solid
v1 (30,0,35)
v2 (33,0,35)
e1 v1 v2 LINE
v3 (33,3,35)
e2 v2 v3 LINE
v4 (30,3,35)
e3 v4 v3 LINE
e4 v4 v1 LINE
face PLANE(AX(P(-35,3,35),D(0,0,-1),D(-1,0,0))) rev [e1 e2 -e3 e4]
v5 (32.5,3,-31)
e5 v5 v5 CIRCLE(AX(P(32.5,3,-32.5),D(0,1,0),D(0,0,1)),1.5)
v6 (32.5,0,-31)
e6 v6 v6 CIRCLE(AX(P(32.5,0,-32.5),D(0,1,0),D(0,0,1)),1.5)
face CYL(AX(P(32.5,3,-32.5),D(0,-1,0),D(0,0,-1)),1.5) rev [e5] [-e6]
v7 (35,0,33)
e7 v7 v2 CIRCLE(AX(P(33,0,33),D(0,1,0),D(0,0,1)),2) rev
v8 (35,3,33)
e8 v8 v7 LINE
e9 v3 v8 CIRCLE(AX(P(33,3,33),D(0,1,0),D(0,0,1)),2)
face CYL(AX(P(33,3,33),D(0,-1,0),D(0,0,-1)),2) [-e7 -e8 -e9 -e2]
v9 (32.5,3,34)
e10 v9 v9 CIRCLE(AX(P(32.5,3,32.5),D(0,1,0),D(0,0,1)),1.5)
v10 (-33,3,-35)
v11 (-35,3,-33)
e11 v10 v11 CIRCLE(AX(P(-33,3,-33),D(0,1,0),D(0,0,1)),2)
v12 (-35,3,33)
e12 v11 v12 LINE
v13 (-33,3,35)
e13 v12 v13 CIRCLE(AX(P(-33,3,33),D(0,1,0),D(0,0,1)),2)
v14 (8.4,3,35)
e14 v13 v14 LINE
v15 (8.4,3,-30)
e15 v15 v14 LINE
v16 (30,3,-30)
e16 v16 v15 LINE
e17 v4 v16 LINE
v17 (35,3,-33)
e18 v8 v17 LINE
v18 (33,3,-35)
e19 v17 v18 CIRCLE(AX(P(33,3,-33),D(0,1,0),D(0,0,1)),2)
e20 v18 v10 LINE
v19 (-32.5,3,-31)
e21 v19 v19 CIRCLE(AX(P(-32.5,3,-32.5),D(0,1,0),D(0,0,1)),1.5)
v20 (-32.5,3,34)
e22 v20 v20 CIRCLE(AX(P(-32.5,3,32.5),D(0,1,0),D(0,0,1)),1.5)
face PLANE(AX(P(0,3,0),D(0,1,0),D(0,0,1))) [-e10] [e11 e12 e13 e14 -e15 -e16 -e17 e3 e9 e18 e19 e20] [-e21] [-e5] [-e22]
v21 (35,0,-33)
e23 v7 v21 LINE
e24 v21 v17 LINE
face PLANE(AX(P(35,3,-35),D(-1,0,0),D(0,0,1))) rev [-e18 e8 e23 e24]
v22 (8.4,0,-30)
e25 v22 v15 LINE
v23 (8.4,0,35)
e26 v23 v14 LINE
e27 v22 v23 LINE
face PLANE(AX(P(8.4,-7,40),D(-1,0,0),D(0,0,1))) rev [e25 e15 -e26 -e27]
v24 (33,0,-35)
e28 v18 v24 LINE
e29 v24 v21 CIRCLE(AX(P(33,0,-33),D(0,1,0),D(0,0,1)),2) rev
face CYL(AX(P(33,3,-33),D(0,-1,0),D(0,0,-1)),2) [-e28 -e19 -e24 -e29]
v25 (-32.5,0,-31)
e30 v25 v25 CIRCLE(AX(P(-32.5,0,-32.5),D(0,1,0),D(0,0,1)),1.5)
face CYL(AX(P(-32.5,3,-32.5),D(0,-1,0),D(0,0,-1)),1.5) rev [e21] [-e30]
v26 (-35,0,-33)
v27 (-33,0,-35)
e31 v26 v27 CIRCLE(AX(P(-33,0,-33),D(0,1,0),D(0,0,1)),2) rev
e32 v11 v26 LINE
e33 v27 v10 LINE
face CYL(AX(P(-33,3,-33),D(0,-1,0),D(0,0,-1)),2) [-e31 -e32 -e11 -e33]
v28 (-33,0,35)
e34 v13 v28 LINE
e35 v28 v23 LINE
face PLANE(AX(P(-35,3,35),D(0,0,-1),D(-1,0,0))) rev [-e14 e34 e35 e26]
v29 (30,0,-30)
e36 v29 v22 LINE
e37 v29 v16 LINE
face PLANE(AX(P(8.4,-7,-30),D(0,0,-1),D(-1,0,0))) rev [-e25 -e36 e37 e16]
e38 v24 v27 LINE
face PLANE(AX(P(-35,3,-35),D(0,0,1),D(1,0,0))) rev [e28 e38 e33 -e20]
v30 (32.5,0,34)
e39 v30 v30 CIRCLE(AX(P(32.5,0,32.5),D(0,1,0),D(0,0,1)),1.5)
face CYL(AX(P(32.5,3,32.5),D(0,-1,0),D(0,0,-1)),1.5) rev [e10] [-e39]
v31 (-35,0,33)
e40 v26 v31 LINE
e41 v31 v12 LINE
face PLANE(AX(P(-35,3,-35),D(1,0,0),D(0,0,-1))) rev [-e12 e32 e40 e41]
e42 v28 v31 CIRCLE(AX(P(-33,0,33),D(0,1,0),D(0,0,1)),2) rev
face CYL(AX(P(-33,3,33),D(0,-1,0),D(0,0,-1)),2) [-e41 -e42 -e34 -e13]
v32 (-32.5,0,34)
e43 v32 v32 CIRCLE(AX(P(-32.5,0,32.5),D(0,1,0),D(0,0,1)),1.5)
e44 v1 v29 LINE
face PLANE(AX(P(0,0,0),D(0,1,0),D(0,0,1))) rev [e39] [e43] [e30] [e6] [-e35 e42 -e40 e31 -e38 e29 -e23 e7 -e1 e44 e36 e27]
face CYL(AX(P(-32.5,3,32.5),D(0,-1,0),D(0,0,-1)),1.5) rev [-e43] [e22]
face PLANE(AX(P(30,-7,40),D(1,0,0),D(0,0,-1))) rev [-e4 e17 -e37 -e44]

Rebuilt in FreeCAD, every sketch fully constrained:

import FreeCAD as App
import Part
import Sketcher
Q = App.Units.Quantity


def edges_at(feature, points):
    """Names of the edges that pass closest to the given points."""
    edges = feature.Shape.Edges
    near = lambda p: min(range(len(edges)), key=lambda i: edges[i].distToShape(Part.Vertex(*p))[0])
    return sorted({f"Edge{near(p) + 1}" for p in points})


def add_polygon(sketch, points):
    """Adds a closed chain of lines whose ends are joined by coincident constraints."""
    first, n = sketch.GeometryCount, len(points)
    for a, b in zip(points, points[1:] + points[:1]):
        sketch.addGeometry(Part.LineSegment(App.Vector(*a, 0), App.Vector(*b, 0)), False)
    for i in range(n):
        sketch.addConstraint(Sketcher.Constraint("Coincident", first + i, 2, first + (i + 1) % n, 1))

doc = App.newDocument("Part")
body = doc.addObject("PartDesign::Body", "Body")

sketch1 = doc.addObject("Sketcher::SketchObject", "Sketch")
body.addObject(sketch1)
sketch1.AttachmentSupport = (doc.XZ_Plane, [""])
sketch1.MapMode = "FlatFace"
add_polygon(sketch1, [(-35, -35), (-35, 35), (35, 35), (35, -35)])
sketch1.addGeometry(Part.Circle(App.Vector(-32.5, 32.5, 0), App.Vector(0, 0, 1), 1.5), False)
sketch1.addGeometry(Part.Circle(App.Vector(32.5, 32.5, 0), App.Vector(0, 0, 1), 1.5), False)
sketch1.addGeometry(Part.Circle(App.Vector(-32.5, -32.5, 0), App.Vector(0, 0, 1), 1.5), False)
sketch1.addGeometry(Part.Circle(App.Vector(32.5, -32.5, 0), App.Vector(0, 0, 1), 1.5), False)
sketch1.addConstraint([
    Sketcher.Constraint("Vertical", 0),
    Sketcher.Constraint("Horizontal", 1),
    Sketcher.Constraint("Vertical", 2),
    Sketcher.Constraint("Horizontal", 3),
    Sketcher.Constraint("Equal", 4, 5),
    Sketcher.Constraint("Equal", 5, 6),
    Sketcher.Constraint("Equal", 6, 7),
    Sketcher.Constraint("Symmetric", 5, 3, 6, 3, -1, 1),
    Sketcher.Constraint("Symmetric", 4, 3, 7, 3, -1, 1),
    Sketcher.Constraint("Symmetric", 0, 2, 2, 2, -1, 1),
    Sketcher.Constraint("Symmetric", 4, 3, 5, 3, -2),
    Sketcher.Constraint("Equal", 3, 0),
    Sketcher.Constraint("Diameter", 4, Q("3 mm")),
    Sketcher.Constraint("DistanceX", 1, 1, 1, 2, Q("70 mm")),
    Sketcher.Constraint("DistanceX", 4, 3, 5, 3, Q("65 mm")),
    Sketcher.Constraint("DistanceY", 6, 3, 4, 3, Q("65 mm")),
])
pad1 = doc.addObject("PartDesign::Pad", "Pad")
body.addObject(pad1)
pad1.Profile = sketch1
pad1.Length = 3
pad1.Reversed = True
doc.recompute()

fillet = doc.addObject("PartDesign::Fillet", "Fillet")
body.addObject(fillet)
fillet.Base = (pad1, edges_at(pad1, [
    (35, 1.5, 35),
    (-35, 1.5, 35),
    (-35, 1.5, -35),
    (35, 1.5, -35),
]))
fillet.Radius = 2

sketch2 = doc.addObject("Sketcher::SketchObject", "Sketch001")
body.addObject(sketch2)
sketch2.AttachmentSupport = (doc.XZ_Plane, [""])
sketch2.MapMode = "FlatFace"
sketch2.AttachmentOffset = App.Placement(App.Vector(0, 0, -3), App.Rotation())
add_polygon(sketch2, [(8.4, -30), (8.4, 40), (30, 40), (30, -30)])
sketch2.addConstraint([
    Sketcher.Constraint("Vertical", 0),
    Sketcher.Constraint("Horizontal", 1),
    Sketcher.Constraint("Vertical", 2),
    Sketcher.Constraint("Horizontal", 3),
    Sketcher.Constraint("DistanceY", 0, 1, 0, 2, Q("70 mm")),
    Sketcher.Constraint("DistanceX", 1, 1, 1, 2, Q("21.6 mm")),
    Sketcher.Constraint("DistanceY", -1, 1, 0, 2, Q("40 mm")),
    Sketcher.Constraint("DistanceX", -1, 1, 1, 2, Q("30 mm")),
])
pocket1 = doc.addObject("PartDesign::Pocket", "Pocket")
body.addObject(pocket1)
pocket1.Profile = sketch2
pocket1.Length = 10
pocket1.Reversed = True

doc.recompute()
